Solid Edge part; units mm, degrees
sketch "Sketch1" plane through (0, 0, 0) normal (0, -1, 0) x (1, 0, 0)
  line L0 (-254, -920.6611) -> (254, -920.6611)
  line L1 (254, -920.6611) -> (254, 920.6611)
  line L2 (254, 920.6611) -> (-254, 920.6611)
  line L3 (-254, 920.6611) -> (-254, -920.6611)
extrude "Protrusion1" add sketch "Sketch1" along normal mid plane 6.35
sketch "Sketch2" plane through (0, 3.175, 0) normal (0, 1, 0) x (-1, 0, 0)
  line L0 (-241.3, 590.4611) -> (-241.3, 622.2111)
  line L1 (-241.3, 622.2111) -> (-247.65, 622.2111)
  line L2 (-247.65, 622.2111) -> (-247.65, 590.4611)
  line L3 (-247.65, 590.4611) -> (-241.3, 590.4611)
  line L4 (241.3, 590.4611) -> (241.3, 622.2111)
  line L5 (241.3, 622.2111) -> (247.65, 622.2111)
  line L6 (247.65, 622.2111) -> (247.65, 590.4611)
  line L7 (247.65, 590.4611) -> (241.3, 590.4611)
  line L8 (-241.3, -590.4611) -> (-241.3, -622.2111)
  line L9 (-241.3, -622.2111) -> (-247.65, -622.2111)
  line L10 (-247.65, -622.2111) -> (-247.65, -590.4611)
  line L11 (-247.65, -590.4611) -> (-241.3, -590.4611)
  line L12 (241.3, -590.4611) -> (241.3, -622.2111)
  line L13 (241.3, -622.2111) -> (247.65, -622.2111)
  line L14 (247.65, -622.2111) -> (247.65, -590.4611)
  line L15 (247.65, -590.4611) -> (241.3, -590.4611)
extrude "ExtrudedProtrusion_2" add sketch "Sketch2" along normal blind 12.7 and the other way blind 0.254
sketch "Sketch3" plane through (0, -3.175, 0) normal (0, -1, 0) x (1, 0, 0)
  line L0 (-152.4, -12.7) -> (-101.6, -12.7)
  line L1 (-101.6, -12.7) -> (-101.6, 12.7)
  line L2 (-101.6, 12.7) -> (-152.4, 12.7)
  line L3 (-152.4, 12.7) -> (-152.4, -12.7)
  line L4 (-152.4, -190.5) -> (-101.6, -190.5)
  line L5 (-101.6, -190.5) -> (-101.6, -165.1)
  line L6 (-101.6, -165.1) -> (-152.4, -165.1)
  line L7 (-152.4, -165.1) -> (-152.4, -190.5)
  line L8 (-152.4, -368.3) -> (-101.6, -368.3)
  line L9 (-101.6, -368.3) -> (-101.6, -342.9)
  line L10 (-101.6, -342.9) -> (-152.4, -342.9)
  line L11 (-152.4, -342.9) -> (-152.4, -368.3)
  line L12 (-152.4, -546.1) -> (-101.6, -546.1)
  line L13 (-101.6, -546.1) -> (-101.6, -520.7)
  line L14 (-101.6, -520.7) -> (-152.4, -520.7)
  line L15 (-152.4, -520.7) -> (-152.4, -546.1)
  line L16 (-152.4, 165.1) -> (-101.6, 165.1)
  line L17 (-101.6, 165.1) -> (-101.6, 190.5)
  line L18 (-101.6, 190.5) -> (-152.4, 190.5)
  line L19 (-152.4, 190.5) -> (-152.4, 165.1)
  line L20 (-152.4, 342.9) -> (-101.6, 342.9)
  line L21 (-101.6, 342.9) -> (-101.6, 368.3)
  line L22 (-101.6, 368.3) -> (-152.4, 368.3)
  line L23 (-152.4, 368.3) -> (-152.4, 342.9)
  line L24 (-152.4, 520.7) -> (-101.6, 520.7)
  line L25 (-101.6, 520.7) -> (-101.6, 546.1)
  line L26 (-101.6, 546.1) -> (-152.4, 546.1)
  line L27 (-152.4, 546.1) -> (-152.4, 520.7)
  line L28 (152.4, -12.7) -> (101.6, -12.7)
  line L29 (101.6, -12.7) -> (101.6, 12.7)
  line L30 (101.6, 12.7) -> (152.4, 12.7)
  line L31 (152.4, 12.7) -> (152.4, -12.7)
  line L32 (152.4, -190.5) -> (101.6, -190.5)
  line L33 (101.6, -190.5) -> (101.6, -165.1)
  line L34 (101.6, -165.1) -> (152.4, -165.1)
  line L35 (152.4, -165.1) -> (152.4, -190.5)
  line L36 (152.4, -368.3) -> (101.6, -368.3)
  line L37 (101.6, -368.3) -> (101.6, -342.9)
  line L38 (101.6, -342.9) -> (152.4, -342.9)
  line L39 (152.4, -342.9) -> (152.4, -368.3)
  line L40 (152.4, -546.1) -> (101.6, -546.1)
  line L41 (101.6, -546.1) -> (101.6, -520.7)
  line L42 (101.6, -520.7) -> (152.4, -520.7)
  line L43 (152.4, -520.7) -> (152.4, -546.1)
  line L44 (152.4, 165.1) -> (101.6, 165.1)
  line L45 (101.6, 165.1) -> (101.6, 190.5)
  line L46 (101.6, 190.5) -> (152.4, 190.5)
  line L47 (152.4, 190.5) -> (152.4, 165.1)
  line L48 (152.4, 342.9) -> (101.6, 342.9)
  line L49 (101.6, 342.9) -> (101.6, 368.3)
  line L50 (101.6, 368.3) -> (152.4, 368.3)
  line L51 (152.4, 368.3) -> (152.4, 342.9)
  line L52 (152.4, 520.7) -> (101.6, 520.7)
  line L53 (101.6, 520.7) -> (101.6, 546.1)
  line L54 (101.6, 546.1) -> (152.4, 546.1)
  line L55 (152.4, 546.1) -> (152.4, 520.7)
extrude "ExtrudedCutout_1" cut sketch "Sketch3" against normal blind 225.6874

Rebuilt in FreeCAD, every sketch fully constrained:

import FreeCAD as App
import Part
import Sketcher
from FreeCAD import Vector
Q = App.Units.Quantity


def add_polygon(sketch, points):
    """Adds a closed chain of lines whose ends are joined by coincident constraints."""
    first, n = sketch.GeometryCount, len(points)
    for a, b in zip(points, points[1:] + points[:1]):
        sketch.addGeometry(Part.LineSegment(App.Vector(*a, 0), App.Vector(*b, 0)), False)
    for i in range(n):
        sketch.addConstraint(Sketcher.Constraint("Coincident", first + i, 2, first + (i + 1) % n, 1))

doc = App.newDocument("Part")
body = doc.addObject("PartDesign::Body", "Body")

# Sketch on XZ plane
sketch1 = body.newObject("Sketcher::SketchObject", "Sketch")
sketch1.AttachmentSupport = (doc.getObject("XZ_Plane"), [""])
sketch1.MapMode = "FlatFace"
add_polygon(sketch1, [(-254, 921), (-254, -921), (254, -921), (254, 921)])  # lines 0-3
sketch1.addConstraint(Sketcher.Constraint("Vertical", 0))
sketch1.addConstraint(Sketcher.Constraint("Horizontal", 1))
sketch1.addConstraint(Sketcher.Constraint("Vertical", 2))
sketch1.addConstraint(Sketcher.Constraint("Horizontal", 3))
sketch1.addConstraint(Sketcher.Constraint("Symmetric", 0, 2, 2, 2, -1, 1))
sketch1.addConstraint(Sketcher.Constraint("DistanceX", 1, 1, 1, 2, Q("20 in")))
sketch1.addConstraint(Sketcher.Constraint("DistanceY", 0, 2, 0, 1, Q("72.493 in")))
pad1 = body.newObject("PartDesign::Pad", "Pad")
pad1.Profile = sketch1
pad1.Length = Q("0.25 in")
pad1.Midplane = True

# Sketch on XZ plane
sketch2 = body.newObject("Sketcher::SketchObject", "Sketch001")
sketch2.AttachmentSupport = (doc.getObject("XZ_Plane"), [""])
sketch2.MapMode = "FlatFace"
sketch2.AttachmentOffset = App.Placement(Vector(0, 0, -0.125 * 25.4), App.Rotation())
add_polygon(sketch2, [(248, 590), (241, 590), (241, 622), (248, 622)])  # lines 0-3
add_polygon(sketch2, [(-241, 622), (-241, 590), (-248, 590), (-248, 622)])  # lines 4-7
add_polygon(sketch2, [(241, -622), (241, -590), (248, -590), (248, -622)])  # lines 8-11
add_polygon(sketch2, [(-248, -590), (-241, -590), (-241, -622), (-248, -622)])  # lines 12-15
sketch2.addConstraint(Sketcher.Constraint("Horizontal", 0))
sketch2.addConstraint(Sketcher.Constraint("Vertical", 1))
sketch2.addConstraint(Sketcher.Constraint("Horizontal", 2))
sketch2.addConstraint(Sketcher.Constraint("Vertical", 3))
sketch2.addConstraint(Sketcher.Constraint("Vertical", 4))
sketch2.addConstraint(Sketcher.Constraint("Horizontal", 5))
sketch2.addConstraint(Sketcher.Constraint("Vertical", 6))
sketch2.addConstraint(Sketcher.Constraint("Horizontal", 7))
sketch2.addConstraint(Sketcher.Constraint("Vertical", 8))
sketch2.addConstraint(Sketcher.Constraint("Horizontal", 9))
sketch2.addConstraint(Sketcher.Constraint("Vertical", 10))
sketch2.addConstraint(Sketcher.Constraint("Horizontal", 11))
sketch2.addConstraint(Sketcher.Constraint("Horizontal", 12))
sketch2.addConstraint(Sketcher.Constraint("Vertical", 13))
sketch2.addConstraint(Sketcher.Constraint("Horizontal", 14))
sketch2.addConstraint(Sketcher.Constraint("Vertical", 15))
sketch2.addConstraint(Sketcher.Constraint("Symmetric", 4, 2, 8, 2, -1, 1))
sketch2.addConstraint(Sketcher.Constraint("Symmetric", 6, 2, 10, 2, -1, 1))
sketch2.addConstraint(Sketcher.Constraint("Symmetric", 0, 2, 12, 2, -1, 1))
sketch2.addConstraint(Sketcher.Constraint("Symmetric", 2, 2, 14, 2, -1, 1))
sketch2.addConstraint(Sketcher.Constraint("Symmetric", 0, 2, 4, 2, -2))
sketch2.addConstraint(Sketcher.Constraint("Symmetric", 2, 2, 6, 2, -2))
sketch2.addConstraint(Sketcher.Constraint("DistanceX", 4, 2, 0, 2, Q("19 in")))
sketch2.addConstraint(Sketcher.Constraint("DistanceX", 0, 2, 0, 1, Q("0.25 in")))
sketch2.addConstraint(Sketcher.Constraint("DistanceY", 1, 1, 1, 2, Q("1.25 in")))
sketch2.addConstraint(Sketcher.Constraint("DistanceY", 8, 2, 0, 2, Q("46.493 in")))
pad2 = body.newObject("PartDesign::Pad", "Pad001")
pad2.Profile = sketch2
pad2.Type = "TwoLengths"
pad2.Length = Q("0.5 in")
pad2.Length2 = Q("0.01 in")
pad2.Reversed = True

# Sketch on XZ plane
sketch3 = body.newObject("Sketcher::SketchObject", "Sketch002")
sketch3.AttachmentSupport = (doc.getObject("XZ_Plane"), [""])
sketch3.MapMode = "FlatFace"
sketch3.AttachmentOffset = App.Placement(Vector(0, 0, 0.125 * 25.4), App.Rotation())
add_polygon(sketch3, [(-152, 13), (-152, -13), (-102, -13), (-102, 13)])  # lines 0-3
add_polygon(sketch3, [(-152, -165), (-152, -190), (-102, -190), (-102, -165)])  # lines 4-7
add_polygon(sketch3, [(-152, -343), (-152, -368), (-102, -368), (-102, -343)])  # lines 8-11
add_polygon(sketch3, [(-152, -521), (-152, -546), (-102, -546), (-102, -521)])  # lines 12-15
add_polygon(sketch3, [(-152, 190), (-152, 165), (-102, 165), (-102, 190)])  # lines 16-19
add_polygon(sketch3, [(-152, 368), (-152, 343), (-102, 343), (-102, 368)])  # lines 20-23
add_polygon(sketch3, [(-152, 546), (-152, 521), (-102, 521), (-102, 546)])  # lines 24-27
add_polygon(sketch3, [(102, -13), (152, -13), (152, 13), (102, 13)])  # lines 28-31
add_polygon(sketch3, [(102, -190), (152, -190), (152, -165), (102, -165)])  # lines 32-35
add_polygon(sketch3, [(102, -368), (152, -368), (152, -343), (102, -343)])  # lines 36-39
add_polygon(sketch3, [(102, -546), (152, -546), (152, -521), (102, -521)])  # lines 40-43
add_polygon(sketch3, [(102, 165), (152, 165), (152, 190), (102, 190)])  # lines 44-47
add_polygon(sketch3, [(102, 343), (152, 343), (152, 368), (102, 368)])  # lines 48-51
add_polygon(sketch3, [(102, 521), (152, 521), (152, 546), (102, 546)])  # lines 52-55
sketch3.addConstraint(Sketcher.Constraint("Vertical", 0))
sketch3.addConstraint(Sketcher.Constraint("Horizontal", 1))
sketch3.addConstraint(Sketcher.Constraint("Vertical", 2))
sketch3.addConstraint(Sketcher.Constraint("Horizontal", 3))
sketch3.addConstraint(Sketcher.Constraint("Vertical", 4))
sketch3.addConstraint(Sketcher.Constraint("Horizontal", 5))
sketch3.addConstraint(Sketcher.Constraint("Vertical", 6))
sketch3.addConstraint(Sketcher.Constraint("Horizontal", 7))
sketch3.addConstraint(Sketcher.Constraint("Vertical", 8))
sketch3.addConstraint(Sketcher.Constraint("Horizontal", 9))
sketch3.addConstraint(Sketcher.Constraint("Vertical", 10))
sketch3.addConstraint(Sketcher.Constraint("Horizontal", 11))
sketch3.addConstraint(Sketcher.Constraint("Vertical", 12))
sketch3.addConstraint(Sketcher.Constraint("Horizontal", 13))
sketch3.addConstraint(Sketcher.Constraint("Vertical", 14))
sketch3.addConstraint(Sketcher.Constraint("Horizontal", 15))
sketch3.addConstraint(Sketcher.Constraint("Vertical", 16))
sketch3.addConstraint(Sketcher.Constraint("Horizontal", 17))
sketch3.addConstraint(Sketcher.Constraint("Vertical", 18))
sketch3.addConstraint(Sketcher.Constraint("Horizontal", 19))
sketch3.addConstraint(Sketcher.Constraint("Vertical", 20))
sketch3.addConstraint(Sketcher.Constraint("Horizontal", 21))
sketch3.addConstraint(Sketcher.Constraint("Vertical", 22))
sketch3.addConstraint(Sketcher.Constraint("Horizontal", 23))
sketch3.addConstraint(Sketcher.Constraint("Vertical", 24))
sketch3.addConstraint(Sketcher.Constraint("Horizontal", 25))
sketch3.addConstraint(Sketcher.Constraint("Vertical", 26))
sketch3.addConstraint(Sketcher.Constraint("Horizontal", 27))
sketch3.addConstraint(Sketcher.Constraint("Horizontal", 28))
sketch3.addConstraint(Sketcher.Constraint("Vertical", 29))
sketch3.addConstraint(Sketcher.Constraint("Horizontal", 30))
sketch3.addConstraint(Sketcher.Constraint("Vertical", 31))
sketch3.addConstraint(Sketcher.Constraint("Horizontal", 32))
sketch3.addConstraint(Sketcher.Constraint("Vertical", 33))
sketch3.addConstraint(Sketcher.Constraint("Horizontal", 34))
sketch3.addConstraint(Sketcher.Constraint("Vertical", 35))
sketch3.addConstraint(Sketcher.Constraint("Horizontal", 36))
sketch3.addConstraint(Sketcher.Constraint("Vertical", 37))
sketch3.addConstraint(Sketcher.Constraint("Horizontal", 38))
sketch3.addConstraint(Sketcher.Constraint("Vertical", 39))
sketch3.addConstraint(Sketcher.Constraint("Horizontal", 40))
sketch3.addConstraint(Sketcher.Constraint("Vertical", 41))
sketch3.addConstraint(Sketcher.Constraint("Horizontal", 42))
sketch3.addConstraint(Sketcher.Constraint("Vertical", 43))
sketch3.addConstraint(Sketcher.Constraint("Horizontal", 44))
sketch3.addConstraint(Sketcher.Constraint("Vertical", 45))
sketch3.addConstraint(Sketcher.Constraint("Horizontal", 46))
sketch3.addConstraint(Sketcher.Constraint("Vertical", 47))
sketch3.addConstraint(Sketcher.Constraint("Horizontal", 48))
sketch3.addConstraint(Sketcher.Constraint("Vertical", 49))
sketch3.addConstraint(Sketcher.Constraint("Horizontal", 50))
sketch3.addConstraint(Sketcher.Constraint("Vertical", 51))
sketch3.addConstraint(Sketcher.Constraint("Horizontal", 52))
sketch3.addConstraint(Sketcher.Constraint("Vertical", 53))
sketch3.addConstraint(Sketcher.Constraint("Horizontal", 54))
sketch3.addConstraint(Sketcher.Constraint("Vertical", 55))
sketch3.addConstraint(Sketcher.Constraint("Symmetric", 3, 2, 28, 2, -1, 1))
sketch3.addConstraint(Sketcher.Constraint("Symmetric", 1, 2, 30, 2, -1, 1))
sketch3.addConstraint(Sketcher.Constraint("Symmetric", 19, 2, 32, 2, -1, 1))
sketch3.addConstraint(Sketcher.Constraint("Symmetric", 17, 2, 34, 2, -1, 1))
sketch3.addConstraint(Sketcher.Constraint("Symmetric", 23, 2, 36, 2, -1, 1))
sketch3.addConstraint(Sketcher.Constraint("Symmetric", 21, 2, 38, 2, -1, 1))
sketch3.addConstraint(Sketcher.Constraint("Symmetric", 27, 2, 40, 2, -1, 1))
sketch3.addConstraint(Sketcher.Constraint("Symmetric", 25, 2, 42, 2, -1, 1))
sketch3.addConstraint(Sketcher.Constraint("Symmetric", 7, 2, 44, 2, -1, 1))
sketch3.addConstraint(Sketcher.Constraint("Symmetric", 5, 2, 46, 2, -1, 1))
sketch3.addConstraint(Sketcher.Constraint("Symmetric", 11, 2, 48, 2, -1, 1))
sketch3.addConstraint(Sketcher.Constraint("Symmetric", 9, 2, 50, 2, -1, 1))
sketch3.addConstraint(Sketcher.Constraint("Symmetric", 15, 2, 52, 2, -1, 1))
sketch3.addConstraint(Sketcher.Constraint("Symmetric", 13, 2, 54, 2, -1, 1))
sketch3.addConstraint(Sketcher.Constraint("Symmetric", 4, 2, 32, 2, -2))
sketch3.addConstraint(Sketcher.Constraint("Symmetric", 6, 2, 34, 2, -2))
sketch3.addConstraint(Sketcher.Constraint("Symmetric", 8, 2, 36, 2, -2))
sketch3.addConstraint(Sketcher.Constraint("Symmetric", 10, 2, 38, 2, -2))
sketch3.addConstraint(Sketcher.Constraint("Symmetric", 12, 2, 40, 2, -2))
sketch3.addConstraint(Sketcher.Constraint("Symmetric", 14, 2, 42, 2, -2))
sketch3.addConstraint(Sketcher.Constraint("Horizontal", 1, 2, 28, 2))
sketch3.addConstraint(Sketcher.Constraint("Vertical", 3, 2, 4, 2))
sketch3.addConstraint(Sketcher.Constraint("Vertical", 2, 2, 5, 2))
sketch3.addConstraint(Sketcher.Constraint("Vertical", 7, 2, 8, 2))
sketch3.addConstraint(Sketcher.Constraint("Vertical", 6, 2, 9, 2))
sketch3.addConstraint(Sketcher.Constraint("Vertical", 11, 2, 12, 2))
sketch3.addConstraint(Sketcher.Constraint("Vertical", 10, 2, 13, 2))
sketch3.addConstraint(Sketcher.Constraint("Equal", 2, 4))
sketch3.addConstraint(Sketcher.Constraint("Equal", 6, 8))
sketch3.addConstraint(Sketcher.Constraint("Equal", 10, 12))
sketch3.addConstraint(Sketcher.Constraint("DistanceX", 1, 1, 1, 2, Q("2 in")))
sketch3.addConstraint(Sketcher.Constraint("DistanceY", 0, 2, 0, 1, Q("1 in")))
sketch3.addConstraint(Sketcher.Constraint("DistanceX", 0, 2, -1, 1, Q("6 in")))
sketch3.addConstraint(Sketcher.Constraint("DistanceY", 4, 2, 0, 2, Q("7 in")))
sketch3.addConstraint(Sketcher.Constraint("DistanceY", 8, 2, 4, 2, Q("7 in")))
sketch3.addConstraint(Sketcher.Constraint("DistanceY", 12, 2, 8, 2, Q("7 in")))
pocket1 = body.newObject("PartDesign::Pocket", "Pocket")
pocket1.Profile = sketch3
pocket1.Length = 225.6874

doc.recompute()
